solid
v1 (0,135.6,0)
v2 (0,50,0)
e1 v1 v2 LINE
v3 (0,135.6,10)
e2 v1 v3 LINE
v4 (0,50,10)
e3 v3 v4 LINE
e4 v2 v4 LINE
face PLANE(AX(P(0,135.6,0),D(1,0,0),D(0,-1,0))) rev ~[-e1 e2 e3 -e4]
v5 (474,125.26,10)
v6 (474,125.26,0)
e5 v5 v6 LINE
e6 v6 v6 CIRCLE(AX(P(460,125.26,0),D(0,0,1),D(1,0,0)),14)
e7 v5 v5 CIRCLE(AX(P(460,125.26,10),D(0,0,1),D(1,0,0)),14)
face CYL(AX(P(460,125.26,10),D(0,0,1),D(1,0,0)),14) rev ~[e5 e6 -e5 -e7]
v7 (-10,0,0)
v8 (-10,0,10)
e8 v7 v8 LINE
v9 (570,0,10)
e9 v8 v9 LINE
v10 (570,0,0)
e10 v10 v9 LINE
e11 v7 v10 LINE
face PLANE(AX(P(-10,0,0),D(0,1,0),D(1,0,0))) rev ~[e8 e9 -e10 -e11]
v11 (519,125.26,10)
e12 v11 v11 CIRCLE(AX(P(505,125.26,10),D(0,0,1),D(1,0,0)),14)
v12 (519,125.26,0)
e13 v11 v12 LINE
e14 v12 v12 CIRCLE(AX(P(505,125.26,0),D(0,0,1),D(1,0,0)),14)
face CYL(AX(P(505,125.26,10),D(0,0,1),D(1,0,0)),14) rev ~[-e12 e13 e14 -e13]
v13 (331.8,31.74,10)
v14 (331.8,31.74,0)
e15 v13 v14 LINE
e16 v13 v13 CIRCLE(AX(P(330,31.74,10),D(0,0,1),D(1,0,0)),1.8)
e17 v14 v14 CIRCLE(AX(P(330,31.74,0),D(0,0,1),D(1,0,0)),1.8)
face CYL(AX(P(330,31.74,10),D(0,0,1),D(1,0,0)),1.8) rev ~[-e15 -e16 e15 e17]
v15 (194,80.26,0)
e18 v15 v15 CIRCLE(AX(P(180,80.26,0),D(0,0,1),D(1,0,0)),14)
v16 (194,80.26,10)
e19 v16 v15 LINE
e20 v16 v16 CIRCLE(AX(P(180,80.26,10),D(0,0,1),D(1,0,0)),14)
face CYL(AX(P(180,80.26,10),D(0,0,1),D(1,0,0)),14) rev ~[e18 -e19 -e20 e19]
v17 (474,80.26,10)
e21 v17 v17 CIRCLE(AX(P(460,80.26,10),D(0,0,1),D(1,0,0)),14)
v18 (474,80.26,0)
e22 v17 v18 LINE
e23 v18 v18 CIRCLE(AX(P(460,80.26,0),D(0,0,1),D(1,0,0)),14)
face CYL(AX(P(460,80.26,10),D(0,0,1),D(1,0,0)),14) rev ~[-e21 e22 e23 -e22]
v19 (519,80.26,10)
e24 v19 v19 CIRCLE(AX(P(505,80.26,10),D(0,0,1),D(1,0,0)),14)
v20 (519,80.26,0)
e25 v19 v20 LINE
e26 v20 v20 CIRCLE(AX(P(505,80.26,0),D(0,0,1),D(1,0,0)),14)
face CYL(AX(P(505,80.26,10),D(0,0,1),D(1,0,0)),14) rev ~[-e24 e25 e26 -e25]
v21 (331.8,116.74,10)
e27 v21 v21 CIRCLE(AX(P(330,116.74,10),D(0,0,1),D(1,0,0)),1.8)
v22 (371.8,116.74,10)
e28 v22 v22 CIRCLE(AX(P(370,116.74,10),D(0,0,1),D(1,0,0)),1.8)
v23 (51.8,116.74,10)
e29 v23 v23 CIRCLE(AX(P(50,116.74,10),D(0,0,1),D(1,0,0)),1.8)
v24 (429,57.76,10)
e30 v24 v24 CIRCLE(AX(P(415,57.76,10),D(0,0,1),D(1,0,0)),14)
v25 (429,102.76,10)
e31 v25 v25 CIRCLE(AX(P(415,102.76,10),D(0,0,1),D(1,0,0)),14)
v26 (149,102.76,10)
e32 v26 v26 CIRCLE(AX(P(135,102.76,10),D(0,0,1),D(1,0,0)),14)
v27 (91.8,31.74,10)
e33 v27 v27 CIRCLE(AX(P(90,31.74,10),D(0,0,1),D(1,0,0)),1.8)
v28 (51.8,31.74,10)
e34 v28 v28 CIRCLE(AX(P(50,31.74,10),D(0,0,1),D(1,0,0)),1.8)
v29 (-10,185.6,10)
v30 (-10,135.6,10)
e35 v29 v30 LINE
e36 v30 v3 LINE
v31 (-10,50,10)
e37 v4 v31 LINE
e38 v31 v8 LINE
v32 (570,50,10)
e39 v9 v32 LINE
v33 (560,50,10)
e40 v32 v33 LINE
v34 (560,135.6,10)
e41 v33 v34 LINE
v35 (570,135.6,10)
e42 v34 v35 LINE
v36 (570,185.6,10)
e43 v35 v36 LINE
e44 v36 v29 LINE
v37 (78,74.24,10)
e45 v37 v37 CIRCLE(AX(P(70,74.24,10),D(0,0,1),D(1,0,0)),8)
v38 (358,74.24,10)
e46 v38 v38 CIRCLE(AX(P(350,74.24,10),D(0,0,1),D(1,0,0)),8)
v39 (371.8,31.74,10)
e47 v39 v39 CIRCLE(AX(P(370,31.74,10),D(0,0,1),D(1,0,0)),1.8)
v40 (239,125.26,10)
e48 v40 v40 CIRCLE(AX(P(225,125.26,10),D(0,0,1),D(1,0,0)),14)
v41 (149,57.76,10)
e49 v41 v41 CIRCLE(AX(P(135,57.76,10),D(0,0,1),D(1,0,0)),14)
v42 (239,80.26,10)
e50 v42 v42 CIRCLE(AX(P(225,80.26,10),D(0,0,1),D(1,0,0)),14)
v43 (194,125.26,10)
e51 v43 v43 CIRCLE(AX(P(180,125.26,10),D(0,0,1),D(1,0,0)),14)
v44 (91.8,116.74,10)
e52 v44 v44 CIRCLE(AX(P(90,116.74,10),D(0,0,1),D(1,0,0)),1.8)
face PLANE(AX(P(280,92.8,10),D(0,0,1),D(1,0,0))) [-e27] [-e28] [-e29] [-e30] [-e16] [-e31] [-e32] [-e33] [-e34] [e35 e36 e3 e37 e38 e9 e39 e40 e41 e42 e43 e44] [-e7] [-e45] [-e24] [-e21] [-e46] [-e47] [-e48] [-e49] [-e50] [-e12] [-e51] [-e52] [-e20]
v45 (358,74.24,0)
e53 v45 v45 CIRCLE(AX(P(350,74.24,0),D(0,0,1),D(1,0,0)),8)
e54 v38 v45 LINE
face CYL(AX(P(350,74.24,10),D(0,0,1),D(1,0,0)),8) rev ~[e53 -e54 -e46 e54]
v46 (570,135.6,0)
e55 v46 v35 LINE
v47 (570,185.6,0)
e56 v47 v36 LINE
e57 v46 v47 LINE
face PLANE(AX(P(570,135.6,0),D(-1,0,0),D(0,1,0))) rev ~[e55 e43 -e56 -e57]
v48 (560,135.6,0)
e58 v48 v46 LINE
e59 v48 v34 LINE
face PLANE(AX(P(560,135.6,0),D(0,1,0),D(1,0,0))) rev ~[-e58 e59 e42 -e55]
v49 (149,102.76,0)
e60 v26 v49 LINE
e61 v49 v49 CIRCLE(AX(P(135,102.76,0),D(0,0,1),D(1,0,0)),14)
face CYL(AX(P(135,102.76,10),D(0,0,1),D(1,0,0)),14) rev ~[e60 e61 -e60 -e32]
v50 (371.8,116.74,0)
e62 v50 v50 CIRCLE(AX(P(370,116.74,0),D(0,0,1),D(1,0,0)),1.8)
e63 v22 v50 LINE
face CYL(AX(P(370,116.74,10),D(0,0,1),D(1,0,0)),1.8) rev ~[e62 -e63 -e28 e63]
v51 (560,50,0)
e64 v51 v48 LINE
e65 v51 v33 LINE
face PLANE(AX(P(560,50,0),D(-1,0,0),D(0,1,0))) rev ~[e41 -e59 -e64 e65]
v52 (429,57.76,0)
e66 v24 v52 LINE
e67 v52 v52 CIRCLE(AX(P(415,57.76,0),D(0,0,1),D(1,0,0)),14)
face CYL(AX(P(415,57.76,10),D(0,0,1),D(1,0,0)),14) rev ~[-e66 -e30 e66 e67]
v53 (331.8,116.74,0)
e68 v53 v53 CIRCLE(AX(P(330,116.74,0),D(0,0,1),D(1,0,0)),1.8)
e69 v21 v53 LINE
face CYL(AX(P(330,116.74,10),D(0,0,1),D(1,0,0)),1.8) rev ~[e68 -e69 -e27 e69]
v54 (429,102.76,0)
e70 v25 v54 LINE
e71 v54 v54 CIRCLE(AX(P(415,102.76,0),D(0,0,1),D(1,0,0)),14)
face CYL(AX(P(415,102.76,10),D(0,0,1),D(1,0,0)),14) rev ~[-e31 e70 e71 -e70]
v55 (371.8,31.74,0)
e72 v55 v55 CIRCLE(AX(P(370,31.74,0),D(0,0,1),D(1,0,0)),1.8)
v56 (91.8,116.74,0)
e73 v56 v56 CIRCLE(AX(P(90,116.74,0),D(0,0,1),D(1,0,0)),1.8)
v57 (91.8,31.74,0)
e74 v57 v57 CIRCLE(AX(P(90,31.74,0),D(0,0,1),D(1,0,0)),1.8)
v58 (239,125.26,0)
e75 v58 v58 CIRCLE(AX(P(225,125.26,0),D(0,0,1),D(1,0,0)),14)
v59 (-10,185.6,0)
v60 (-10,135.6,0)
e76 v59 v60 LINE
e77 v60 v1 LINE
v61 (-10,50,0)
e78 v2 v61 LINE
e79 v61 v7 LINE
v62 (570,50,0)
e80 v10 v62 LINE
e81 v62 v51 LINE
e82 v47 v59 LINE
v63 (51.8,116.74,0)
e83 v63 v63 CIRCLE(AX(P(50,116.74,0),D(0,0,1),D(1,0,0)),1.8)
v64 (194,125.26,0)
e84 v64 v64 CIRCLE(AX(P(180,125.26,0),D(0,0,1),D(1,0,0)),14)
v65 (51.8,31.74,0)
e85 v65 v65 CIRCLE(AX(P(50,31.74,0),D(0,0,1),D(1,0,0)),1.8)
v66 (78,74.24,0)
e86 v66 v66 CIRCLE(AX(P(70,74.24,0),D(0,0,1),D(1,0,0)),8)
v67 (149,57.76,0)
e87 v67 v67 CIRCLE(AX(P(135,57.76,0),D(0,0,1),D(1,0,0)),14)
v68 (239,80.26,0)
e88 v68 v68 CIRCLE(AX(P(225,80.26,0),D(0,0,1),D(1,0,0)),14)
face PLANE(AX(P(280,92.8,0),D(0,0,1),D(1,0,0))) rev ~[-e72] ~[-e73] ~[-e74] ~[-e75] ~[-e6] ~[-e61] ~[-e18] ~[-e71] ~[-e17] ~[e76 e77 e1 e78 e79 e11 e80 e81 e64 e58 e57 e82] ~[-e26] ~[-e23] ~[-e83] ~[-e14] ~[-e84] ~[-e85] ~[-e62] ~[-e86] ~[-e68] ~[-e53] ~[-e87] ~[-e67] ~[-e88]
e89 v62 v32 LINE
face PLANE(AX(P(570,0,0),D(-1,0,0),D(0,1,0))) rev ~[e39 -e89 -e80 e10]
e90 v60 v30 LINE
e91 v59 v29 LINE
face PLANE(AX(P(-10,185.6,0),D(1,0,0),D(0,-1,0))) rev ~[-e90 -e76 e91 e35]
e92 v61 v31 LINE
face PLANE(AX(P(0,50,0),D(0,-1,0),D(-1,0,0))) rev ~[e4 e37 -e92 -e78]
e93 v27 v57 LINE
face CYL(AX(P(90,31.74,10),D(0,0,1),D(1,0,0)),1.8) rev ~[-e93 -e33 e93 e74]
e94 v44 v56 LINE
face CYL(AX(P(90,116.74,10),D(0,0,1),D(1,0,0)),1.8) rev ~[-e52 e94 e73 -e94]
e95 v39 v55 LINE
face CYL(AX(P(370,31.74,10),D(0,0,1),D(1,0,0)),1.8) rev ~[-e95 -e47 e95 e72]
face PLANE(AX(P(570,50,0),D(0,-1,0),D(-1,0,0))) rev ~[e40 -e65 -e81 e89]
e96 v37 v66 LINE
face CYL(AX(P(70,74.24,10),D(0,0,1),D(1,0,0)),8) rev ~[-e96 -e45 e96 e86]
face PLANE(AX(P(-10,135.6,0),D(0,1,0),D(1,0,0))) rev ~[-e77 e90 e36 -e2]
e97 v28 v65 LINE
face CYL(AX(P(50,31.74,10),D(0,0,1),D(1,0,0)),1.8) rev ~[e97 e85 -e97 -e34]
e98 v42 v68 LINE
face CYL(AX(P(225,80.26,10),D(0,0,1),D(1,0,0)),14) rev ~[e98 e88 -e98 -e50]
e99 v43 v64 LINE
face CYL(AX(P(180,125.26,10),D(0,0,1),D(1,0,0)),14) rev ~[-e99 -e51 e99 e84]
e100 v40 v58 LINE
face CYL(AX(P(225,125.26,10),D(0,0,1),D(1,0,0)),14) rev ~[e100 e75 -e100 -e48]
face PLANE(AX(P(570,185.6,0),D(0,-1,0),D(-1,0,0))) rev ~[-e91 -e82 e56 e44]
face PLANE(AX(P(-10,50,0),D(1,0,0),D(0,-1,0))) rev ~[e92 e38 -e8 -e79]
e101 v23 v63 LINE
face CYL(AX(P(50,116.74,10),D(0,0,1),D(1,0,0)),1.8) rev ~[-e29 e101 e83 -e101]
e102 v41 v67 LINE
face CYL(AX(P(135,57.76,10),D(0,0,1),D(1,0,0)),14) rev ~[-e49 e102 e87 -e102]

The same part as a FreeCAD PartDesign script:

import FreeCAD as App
import Part
import Sketcher
from FreeCAD import Vector
Q = App.Units.Quantity

doc = App.newDocument("Part")
body = doc.addObject("PartDesign::Body", "Body")

# Sketch on XY plane
sketch1 = body.newObject("Sketcher::SketchObject", "Sketch")
sketch1.AttachmentSupport = (doc.getObject("XY_Plane"), [""])
sketch1.MapMode = "FlatFace"
sketch1.addGeometry(Part.LineSegment(Vector(570, 0, 0), Vector(570, 50, 0)), False)
sketch1.addGeometry(Part.LineSegment(Vector(570, 50, 0), Vector(560, 50, 0)), False)
sketch1.addGeometry(Part.LineSegment(Vector(560, 50, 0), Vector(560, 136, 0)), False)
sketch1.addGeometry(Part.LineSegment(Vector(560, 136, 0), Vector(570, 136, 0)), False)
sketch1.addGeometry(Part.LineSegment(Vector(570, 136, 0), Vector(570, 186, 0)), False)
sketch1.addGeometry(Part.LineSegment(Vector(570, 186, 0), Vector(-10, 186, 0)), False)
sketch1.addGeometry(Part.LineSegment(Vector(-10, 186, 0), Vector(-10, 136, 0)), False)
sketch1.addGeometry(Part.LineSegment(Vector(-10, 136, 0), Vector(0, 136, 0)), False)
sketch1.addGeometry(Part.LineSegment(Vector(0, 136, 0), Vector(0, 50, 0)), False)
sketch1.addGeometry(Part.LineSegment(Vector(0, 50, 0), Vector(-10, 50, 0)), False)
sketch1.addGeometry(Part.LineSegment(Vector(-10, 50, 0), Vector(-10, 0, 0)), False)
sketch1.addGeometry(Part.LineSegment(Vector(-10, 0, 0), Vector(570, 0, 0)), False)
sketch1.addConstraint(Sketcher.Constraint("Coincident", 0, 2, 1, 1))
sketch1.addConstraint(Sketcher.Constraint("Coincident", 1, 2, 2, 1))
sketch1.addConstraint(Sketcher.Constraint("Coincident", 2, 2, 3, 1))
sketch1.addConstraint(Sketcher.Constraint("Coincident", 3, 2, 4, 1))
sketch1.addConstraint(Sketcher.Constraint("Coincident", 4, 2, 5, 1))
sketch1.addConstraint(Sketcher.Constraint("Coincident", 5, 2, 6, 1))
sketch1.addConstraint(Sketcher.Constraint("Coincident", 6, 2, 7, 1))
sketch1.addConstraint(Sketcher.Constraint("Coincident", 7, 2, 8, 1))
sketch1.addConstraint(Sketcher.Constraint("Coincident", 8, 2, 9, 1))
sketch1.addConstraint(Sketcher.Constraint("Coincident", 9, 2, 10, 1))
sketch1.addConstraint(Sketcher.Constraint("Coincident", 10, 2, 11, 1))
sketch1.addConstraint(Sketcher.Constraint("Coincident", 11, 2, 0, 1))
sketch1.addConstraint(Sketcher.Constraint("Vertical", 0))
sketch1.addConstraint(Sketcher.Constraint("Horizontal", 1))
sketch1.addConstraint(Sketcher.Constraint("Vertical", 2))
sketch1.addConstraint(Sketcher.Constraint("Horizontal", 3))
sketch1.addConstraint(Sketcher.Constraint("Vertical", 4))
sketch1.addConstraint(Sketcher.Constraint("Horizontal", 5))
sketch1.addConstraint(Sketcher.Constraint("Vertical", 6))
sketch1.addConstraint(Sketcher.Constraint("Horizontal", 7))
sketch1.addConstraint(Sketcher.Constraint("Vertical", 8))
sketch1.addConstraint(Sketcher.Constraint("Horizontal", 9))
sketch1.addConstraint(Sketcher.Constraint("Vertical", 10))
sketch1.addConstraint(Sketcher.Constraint("Horizontal", 11))
sketch1.addConstraint(Sketcher.Constraint("PointOnObject", 7, 2, -2))
sketch1.addConstraint(Sketcher.Constraint("PointOnObject", 10, 2, -1))
sketch1.addConstraint(Sketcher.Constraint("Horizontal", 3, 2, 6, 2))
sketch1.addConstraint(Sketcher.Constraint("Horizontal", 1, 2, 8, 2))
sketch1.addConstraint(Sketcher.Constraint("Vertical", 0, 2, 3, 2))
sketch1.addConstraint(Sketcher.Constraint("Vertical", 6, 2, 9, 2))
sketch1.addConstraint(Sketcher.Constraint("Equal", 3, 7))
sketch1.addConstraint(Sketcher.Constraint("Equal", 0, 4))
sketch1.addConstraint(Sketcher.Constraint("DistanceX", 1, 2, 1, 1, Q("10 mm")))
sketch1.addConstraint(Sketcher.Constraint("DistanceX", 5, 2, 5, 1, Q("580 mm")))
sketch1.addConstraint(Sketcher.Constraint("DistanceY", 0, 1, 0, 2, Q("50 mm")))
sketch1.addConstraint(Sketcher.Constraint("DistanceY", 2, 1, 2, 2, Q("85.6 mm")))
pad1 = body.newObject("PartDesign::Pad", "Pad")
pad1.Profile = sketch1
pad1.Length = 10

# Sketch on XY plane
sketch2 = body.newObject("Sketcher::SketchObject", "Sketch001")
sketch2.AttachmentSupport = (doc.getObject("XY_Plane"), [""])
sketch2.MapMode = "FlatFace"
sketch2.AttachmentOffset = App.Placement(Vector(0, 0, 10), App.Rotation())
sketch2.addGeometry(Part.Circle(Vector(70, 74.2, 0), Vector(0, 0, 1), 8), False)
sketch2.addGeometry(Part.Circle(Vector(135, 102.8, 0), Vector(0, 0, 1), 14), False)
sketch2.addGeometry(Part.Circle(Vector(180, 125.3, 0), Vector(0, 0, 1), 14), False)
sketch2.addGeometry(Part.Circle(Vector(225, 125.3, 0), Vector(0, 0, 1), 14), False)
sketch2.addGeometry(Part.Circle(Vector(135, 57.8, 0), Vector(0, 0, 1), 14), False)
sketch2.addGeometry(Part.Circle(Vector(180, 80.3, 0), Vector(0, 0, 1), 14), False)
sketch2.addGeometry(Part.Circle(Vector(225, 80.3, 0), Vector(0, 0, 1), 14), False)
sketch2.addGeometry(Part.Circle(Vector(350, 74.2, 0), Vector(0, 0, 1), 8), False)
sketch2.addGeometry(Part.Circle(Vector(415, 102.8, 0), Vector(0, 0, 1), 14), False)
sketch2.addGeometry(Part.Circle(Vector(460, 125.3, 0), Vector(0, 0, 1), 14), False)
sketch2.addGeometry(Part.Circle(Vector(505, 125.3, 0), Vector(0, 0, 1), 14), False)
sketch2.addGeometry(Part.Circle(Vector(505, 80.3, 0), Vector(0, 0, 1), 14), False)
sketch2.addGeometry(Part.Circle(Vector(460, 80.3, 0), Vector(0, 0, 1), 14), False)
sketch2.addGeometry(Part.Circle(Vector(415, 57.8, 0), Vector(0, 0, 1), 14), False)
sketch2.addGeometry(Part.Circle(Vector(50, 116.7, 0), Vector(0, 0, 1), 1.8), False)
sketch2.addGeometry(Part.Circle(Vector(90, 116.7, 0), Vector(0, 0, 1), 1.8), False)
sketch2.addGeometry(Part.Circle(Vector(50, 31.7, 0), Vector(0, 0, 1), 1.8), False)
sketch2.addGeometry(Part.Circle(Vector(90, 31.7, 0), Vector(0, 0, 1), 1.8), False)
sketch2.addGeometry(Part.Circle(Vector(330, 116.7, 0), Vector(0, 0, 1), 1.8), False)
sketch2.addGeometry(Part.Circle(Vector(370, 116.7, 0), Vector(0, 0, 1), 1.8), False)
sketch2.addGeometry(Part.Circle(Vector(370, 31.7, 0), Vector(0, 0, 1), 1.8), False)
sketch2.addGeometry(Part.Circle(Vector(330, 31.7, 0), Vector(0, 0, 1), 1.8), False)
sketch2.addConstraint(Sketcher.Constraint("Equal", 1, 2))
sketch2.addConstraint(Sketcher.Constraint("Equal", 2, 3))
sketch2.addConstraint(Sketcher.Constraint("Equal", 3, 4))
sketch2.addConstraint(Sketcher.Constraint("Equal", 4, 5))
sketch2.addConstraint(Sketcher.Constraint("Equal", 5, 6))
sketch2.addConstraint(Sketcher.Constraint("Equal", 0, 7))
sketch2.addConstraint(Sketcher.Constraint("Equal", 6, 8))
sketch2.addConstraint(Sketcher.Constraint("Equal", 8, 9))
sketch2.addConstraint(Sketcher.Constraint("Equal", 9, 10))
sketch2.addConstraint(Sketcher.Constraint("Equal", 10, 11))
sketch2.addConstraint(Sketcher.Constraint("Equal", 11, 12))
sketch2.addConstraint(Sketcher.Constraint("Equal", 12, 13))
sketch2.addConstraint(Sketcher.Constraint("Equal", 14, 15))
sketch2.addConstraint(Sketcher.Constraint("Equal", 15, 16))
sketch2.addConstraint(Sketcher.Constraint("Equal", 16, 17))
sketch2.addConstraint(Sketcher.Constraint("Equal", 17, 18))
sketch2.addConstraint(Sketcher.Constraint("Equal", 18, 19))
sketch2.addConstraint(Sketcher.Constraint("Equal", 19, 20))
sketch2.addConstraint(Sketcher.Constraint("Equal", 20, 21))
sketch2.addConstraint(Sketcher.Constraint("Horizontal", 2, 3, 3, 3))
sketch2.addConstraint(Sketcher.Constraint("Horizontal", 5, 3, 6, 3))
sketch2.addConstraint(Sketcher.Constraint("Horizontal", 0, 3, 7, 3))
sketch2.addConstraint(Sketcher.Constraint("Horizontal", 1, 3, 8, 3))
sketch2.addConstraint(Sketcher.Constraint("Horizontal", 3, 3, 9, 3))
sketch2.addConstraint(Sketcher.Constraint("Horizontal", 9, 3, 10, 3))
sketch2.addConstraint(Sketcher.Constraint("Horizontal", 6, 3, 11, 3))
sketch2.addConstraint(Sketcher.Constraint("Horizontal", 11, 3, 12, 3))
sketch2.addConstraint(Sketcher.Constraint("Horizontal", 4, 3, 13, 3))
sketch2.addConstraint(Sketcher.Constraint("Horizontal", 14, 3, 15, 3))
sketch2.addConstraint(Sketcher.Constraint("Horizontal", 16, 3, 17, 3))
sketch2.addConstraint(Sketcher.Constraint("Horizontal", 15, 3, 18, 3))
sketch2.addConstraint(Sketcher.Constraint("Horizontal", 18, 3, 19, 3))
sketch2.addConstraint(Sketcher.Constraint("Horizontal", 17, 3, 20, 3))
sketch2.addConstraint(Sketcher.Constraint("Horizontal", 20, 3, 21, 3))
sketch2.addConstraint(Sketcher.Constraint("Vertical", 1, 3, 4, 3))
sketch2.addConstraint(Sketcher.Constraint("Vertical", 2, 3, 5, 3))
sketch2.addConstraint(Sketcher.Constraint("Vertical", 3, 3, 6, 3))
sketch2.addConstraint(Sketcher.Constraint("Vertical", 10, 3, 11, 3))
sketch2.addConstraint(Sketcher.Constraint("Vertical", 9, 3, 12, 3))
sketch2.addConstraint(Sketcher.Constraint("Vertical", 8, 3, 13, 3))
sketch2.addConstraint(Sketcher.Constraint("Vertical", 14, 3, 16, 3))
sketch2.addConstraint(Sketcher.Constraint("Vertical", 15, 3, 17, 3))
sketch2.addConstraint(Sketcher.Constraint("Vertical", 19, 3, 20, 3))
sketch2.addConstraint(Sketcher.Constraint("Vertical", 18, 3, 21, 3))
sketch2.addConstraint(Sketcher.Constraint("Diameter", 0, Q("16 mm")))
sketch2.addConstraint(Sketcher.Constraint("Diameter", 1, Q("28 mm")))
sketch2.addConstraint(Sketcher.Constraint("Diameter", 14, Q("3.6 mm")))
sketch2.addConstraint(Sketcher.Constraint("DistanceX", -1, 1, 0, 3, Q("70 mm")))
sketch2.addConstraint(Sketcher.Constraint("DistanceX", -1, 1, 1, 3, Q("135 mm")))
sketch2.addConstraint(Sketcher.Constraint("DistanceX", -1, 1, 2, 3, Q("180 mm")))
sketch2.addConstraint(Sketcher.Constraint("DistanceX", -1, 1, 3, 3, Q("225 mm")))
sketch2.addConstraint(Sketcher.Constraint("DistanceX", -1, 1, 7, 3, Q("350 mm")))
sketch2.addConstraint(Sketcher.Constraint("DistanceX", -1, 1, 8, 3, Q("415 mm")))
sketch2.addConstraint(Sketcher.Constraint("DistanceX", -1, 1, 9, 3, Q("460 mm")))
sketch2.addConstraint(Sketcher.Constraint("DistanceX", -1, 1, 10, 3, Q("505 mm")))
sketch2.addConstraint(Sketcher.Constraint("DistanceX", -1, 1, 14, 3, Q("50 mm")))
sketch2.addConstraint(Sketcher.Constraint("DistanceX", -1, 1, 15, 3, Q("90 mm")))
sketch2.addConstraint(Sketcher.Constraint("DistanceX", -1, 1, 18, 3, Q("330 mm")))
sketch2.addConstraint(Sketcher.Constraint("DistanceX", -1, 1, 19, 3, Q("370 mm")))
sketch2.addConstraint(Sketcher.Constraint("DistanceY", 4, 3, 1, 3, Q("45 mm")))
sketch2.addConstraint(Sketcher.Constraint("DistanceY", 5, 3, 2, 3, Q("45 mm")))
sketch2.addConstraint(Sketcher.Constraint("DistanceY", 16, 3, 14, 3, Q("85 mm")))
sketch2.addConstraint(Sketcher.Constraint("DistanceY", 1, 3, 2, 3, Q("22.5 mm")))
sketch2.addConstraint(Sketcher.Constraint("DistanceY", 0, 3, 14, 3, Q("42.5 mm")))
sketch2.addConstraint(Sketcher.Constraint("DistanceY", -1, 1, 0, 3, Q("74.24 mm")))
sketch2.addConstraint(Sketcher.Constraint("DistanceY", -1, 1, 1, 3, Q("102.76 mm")))
pocket1 = body.newObject("PartDesign::Pocket", "Pocket")
pocket1.Profile = sketch2
pocket1.Type = "ThroughAll"

doc.recompute()
